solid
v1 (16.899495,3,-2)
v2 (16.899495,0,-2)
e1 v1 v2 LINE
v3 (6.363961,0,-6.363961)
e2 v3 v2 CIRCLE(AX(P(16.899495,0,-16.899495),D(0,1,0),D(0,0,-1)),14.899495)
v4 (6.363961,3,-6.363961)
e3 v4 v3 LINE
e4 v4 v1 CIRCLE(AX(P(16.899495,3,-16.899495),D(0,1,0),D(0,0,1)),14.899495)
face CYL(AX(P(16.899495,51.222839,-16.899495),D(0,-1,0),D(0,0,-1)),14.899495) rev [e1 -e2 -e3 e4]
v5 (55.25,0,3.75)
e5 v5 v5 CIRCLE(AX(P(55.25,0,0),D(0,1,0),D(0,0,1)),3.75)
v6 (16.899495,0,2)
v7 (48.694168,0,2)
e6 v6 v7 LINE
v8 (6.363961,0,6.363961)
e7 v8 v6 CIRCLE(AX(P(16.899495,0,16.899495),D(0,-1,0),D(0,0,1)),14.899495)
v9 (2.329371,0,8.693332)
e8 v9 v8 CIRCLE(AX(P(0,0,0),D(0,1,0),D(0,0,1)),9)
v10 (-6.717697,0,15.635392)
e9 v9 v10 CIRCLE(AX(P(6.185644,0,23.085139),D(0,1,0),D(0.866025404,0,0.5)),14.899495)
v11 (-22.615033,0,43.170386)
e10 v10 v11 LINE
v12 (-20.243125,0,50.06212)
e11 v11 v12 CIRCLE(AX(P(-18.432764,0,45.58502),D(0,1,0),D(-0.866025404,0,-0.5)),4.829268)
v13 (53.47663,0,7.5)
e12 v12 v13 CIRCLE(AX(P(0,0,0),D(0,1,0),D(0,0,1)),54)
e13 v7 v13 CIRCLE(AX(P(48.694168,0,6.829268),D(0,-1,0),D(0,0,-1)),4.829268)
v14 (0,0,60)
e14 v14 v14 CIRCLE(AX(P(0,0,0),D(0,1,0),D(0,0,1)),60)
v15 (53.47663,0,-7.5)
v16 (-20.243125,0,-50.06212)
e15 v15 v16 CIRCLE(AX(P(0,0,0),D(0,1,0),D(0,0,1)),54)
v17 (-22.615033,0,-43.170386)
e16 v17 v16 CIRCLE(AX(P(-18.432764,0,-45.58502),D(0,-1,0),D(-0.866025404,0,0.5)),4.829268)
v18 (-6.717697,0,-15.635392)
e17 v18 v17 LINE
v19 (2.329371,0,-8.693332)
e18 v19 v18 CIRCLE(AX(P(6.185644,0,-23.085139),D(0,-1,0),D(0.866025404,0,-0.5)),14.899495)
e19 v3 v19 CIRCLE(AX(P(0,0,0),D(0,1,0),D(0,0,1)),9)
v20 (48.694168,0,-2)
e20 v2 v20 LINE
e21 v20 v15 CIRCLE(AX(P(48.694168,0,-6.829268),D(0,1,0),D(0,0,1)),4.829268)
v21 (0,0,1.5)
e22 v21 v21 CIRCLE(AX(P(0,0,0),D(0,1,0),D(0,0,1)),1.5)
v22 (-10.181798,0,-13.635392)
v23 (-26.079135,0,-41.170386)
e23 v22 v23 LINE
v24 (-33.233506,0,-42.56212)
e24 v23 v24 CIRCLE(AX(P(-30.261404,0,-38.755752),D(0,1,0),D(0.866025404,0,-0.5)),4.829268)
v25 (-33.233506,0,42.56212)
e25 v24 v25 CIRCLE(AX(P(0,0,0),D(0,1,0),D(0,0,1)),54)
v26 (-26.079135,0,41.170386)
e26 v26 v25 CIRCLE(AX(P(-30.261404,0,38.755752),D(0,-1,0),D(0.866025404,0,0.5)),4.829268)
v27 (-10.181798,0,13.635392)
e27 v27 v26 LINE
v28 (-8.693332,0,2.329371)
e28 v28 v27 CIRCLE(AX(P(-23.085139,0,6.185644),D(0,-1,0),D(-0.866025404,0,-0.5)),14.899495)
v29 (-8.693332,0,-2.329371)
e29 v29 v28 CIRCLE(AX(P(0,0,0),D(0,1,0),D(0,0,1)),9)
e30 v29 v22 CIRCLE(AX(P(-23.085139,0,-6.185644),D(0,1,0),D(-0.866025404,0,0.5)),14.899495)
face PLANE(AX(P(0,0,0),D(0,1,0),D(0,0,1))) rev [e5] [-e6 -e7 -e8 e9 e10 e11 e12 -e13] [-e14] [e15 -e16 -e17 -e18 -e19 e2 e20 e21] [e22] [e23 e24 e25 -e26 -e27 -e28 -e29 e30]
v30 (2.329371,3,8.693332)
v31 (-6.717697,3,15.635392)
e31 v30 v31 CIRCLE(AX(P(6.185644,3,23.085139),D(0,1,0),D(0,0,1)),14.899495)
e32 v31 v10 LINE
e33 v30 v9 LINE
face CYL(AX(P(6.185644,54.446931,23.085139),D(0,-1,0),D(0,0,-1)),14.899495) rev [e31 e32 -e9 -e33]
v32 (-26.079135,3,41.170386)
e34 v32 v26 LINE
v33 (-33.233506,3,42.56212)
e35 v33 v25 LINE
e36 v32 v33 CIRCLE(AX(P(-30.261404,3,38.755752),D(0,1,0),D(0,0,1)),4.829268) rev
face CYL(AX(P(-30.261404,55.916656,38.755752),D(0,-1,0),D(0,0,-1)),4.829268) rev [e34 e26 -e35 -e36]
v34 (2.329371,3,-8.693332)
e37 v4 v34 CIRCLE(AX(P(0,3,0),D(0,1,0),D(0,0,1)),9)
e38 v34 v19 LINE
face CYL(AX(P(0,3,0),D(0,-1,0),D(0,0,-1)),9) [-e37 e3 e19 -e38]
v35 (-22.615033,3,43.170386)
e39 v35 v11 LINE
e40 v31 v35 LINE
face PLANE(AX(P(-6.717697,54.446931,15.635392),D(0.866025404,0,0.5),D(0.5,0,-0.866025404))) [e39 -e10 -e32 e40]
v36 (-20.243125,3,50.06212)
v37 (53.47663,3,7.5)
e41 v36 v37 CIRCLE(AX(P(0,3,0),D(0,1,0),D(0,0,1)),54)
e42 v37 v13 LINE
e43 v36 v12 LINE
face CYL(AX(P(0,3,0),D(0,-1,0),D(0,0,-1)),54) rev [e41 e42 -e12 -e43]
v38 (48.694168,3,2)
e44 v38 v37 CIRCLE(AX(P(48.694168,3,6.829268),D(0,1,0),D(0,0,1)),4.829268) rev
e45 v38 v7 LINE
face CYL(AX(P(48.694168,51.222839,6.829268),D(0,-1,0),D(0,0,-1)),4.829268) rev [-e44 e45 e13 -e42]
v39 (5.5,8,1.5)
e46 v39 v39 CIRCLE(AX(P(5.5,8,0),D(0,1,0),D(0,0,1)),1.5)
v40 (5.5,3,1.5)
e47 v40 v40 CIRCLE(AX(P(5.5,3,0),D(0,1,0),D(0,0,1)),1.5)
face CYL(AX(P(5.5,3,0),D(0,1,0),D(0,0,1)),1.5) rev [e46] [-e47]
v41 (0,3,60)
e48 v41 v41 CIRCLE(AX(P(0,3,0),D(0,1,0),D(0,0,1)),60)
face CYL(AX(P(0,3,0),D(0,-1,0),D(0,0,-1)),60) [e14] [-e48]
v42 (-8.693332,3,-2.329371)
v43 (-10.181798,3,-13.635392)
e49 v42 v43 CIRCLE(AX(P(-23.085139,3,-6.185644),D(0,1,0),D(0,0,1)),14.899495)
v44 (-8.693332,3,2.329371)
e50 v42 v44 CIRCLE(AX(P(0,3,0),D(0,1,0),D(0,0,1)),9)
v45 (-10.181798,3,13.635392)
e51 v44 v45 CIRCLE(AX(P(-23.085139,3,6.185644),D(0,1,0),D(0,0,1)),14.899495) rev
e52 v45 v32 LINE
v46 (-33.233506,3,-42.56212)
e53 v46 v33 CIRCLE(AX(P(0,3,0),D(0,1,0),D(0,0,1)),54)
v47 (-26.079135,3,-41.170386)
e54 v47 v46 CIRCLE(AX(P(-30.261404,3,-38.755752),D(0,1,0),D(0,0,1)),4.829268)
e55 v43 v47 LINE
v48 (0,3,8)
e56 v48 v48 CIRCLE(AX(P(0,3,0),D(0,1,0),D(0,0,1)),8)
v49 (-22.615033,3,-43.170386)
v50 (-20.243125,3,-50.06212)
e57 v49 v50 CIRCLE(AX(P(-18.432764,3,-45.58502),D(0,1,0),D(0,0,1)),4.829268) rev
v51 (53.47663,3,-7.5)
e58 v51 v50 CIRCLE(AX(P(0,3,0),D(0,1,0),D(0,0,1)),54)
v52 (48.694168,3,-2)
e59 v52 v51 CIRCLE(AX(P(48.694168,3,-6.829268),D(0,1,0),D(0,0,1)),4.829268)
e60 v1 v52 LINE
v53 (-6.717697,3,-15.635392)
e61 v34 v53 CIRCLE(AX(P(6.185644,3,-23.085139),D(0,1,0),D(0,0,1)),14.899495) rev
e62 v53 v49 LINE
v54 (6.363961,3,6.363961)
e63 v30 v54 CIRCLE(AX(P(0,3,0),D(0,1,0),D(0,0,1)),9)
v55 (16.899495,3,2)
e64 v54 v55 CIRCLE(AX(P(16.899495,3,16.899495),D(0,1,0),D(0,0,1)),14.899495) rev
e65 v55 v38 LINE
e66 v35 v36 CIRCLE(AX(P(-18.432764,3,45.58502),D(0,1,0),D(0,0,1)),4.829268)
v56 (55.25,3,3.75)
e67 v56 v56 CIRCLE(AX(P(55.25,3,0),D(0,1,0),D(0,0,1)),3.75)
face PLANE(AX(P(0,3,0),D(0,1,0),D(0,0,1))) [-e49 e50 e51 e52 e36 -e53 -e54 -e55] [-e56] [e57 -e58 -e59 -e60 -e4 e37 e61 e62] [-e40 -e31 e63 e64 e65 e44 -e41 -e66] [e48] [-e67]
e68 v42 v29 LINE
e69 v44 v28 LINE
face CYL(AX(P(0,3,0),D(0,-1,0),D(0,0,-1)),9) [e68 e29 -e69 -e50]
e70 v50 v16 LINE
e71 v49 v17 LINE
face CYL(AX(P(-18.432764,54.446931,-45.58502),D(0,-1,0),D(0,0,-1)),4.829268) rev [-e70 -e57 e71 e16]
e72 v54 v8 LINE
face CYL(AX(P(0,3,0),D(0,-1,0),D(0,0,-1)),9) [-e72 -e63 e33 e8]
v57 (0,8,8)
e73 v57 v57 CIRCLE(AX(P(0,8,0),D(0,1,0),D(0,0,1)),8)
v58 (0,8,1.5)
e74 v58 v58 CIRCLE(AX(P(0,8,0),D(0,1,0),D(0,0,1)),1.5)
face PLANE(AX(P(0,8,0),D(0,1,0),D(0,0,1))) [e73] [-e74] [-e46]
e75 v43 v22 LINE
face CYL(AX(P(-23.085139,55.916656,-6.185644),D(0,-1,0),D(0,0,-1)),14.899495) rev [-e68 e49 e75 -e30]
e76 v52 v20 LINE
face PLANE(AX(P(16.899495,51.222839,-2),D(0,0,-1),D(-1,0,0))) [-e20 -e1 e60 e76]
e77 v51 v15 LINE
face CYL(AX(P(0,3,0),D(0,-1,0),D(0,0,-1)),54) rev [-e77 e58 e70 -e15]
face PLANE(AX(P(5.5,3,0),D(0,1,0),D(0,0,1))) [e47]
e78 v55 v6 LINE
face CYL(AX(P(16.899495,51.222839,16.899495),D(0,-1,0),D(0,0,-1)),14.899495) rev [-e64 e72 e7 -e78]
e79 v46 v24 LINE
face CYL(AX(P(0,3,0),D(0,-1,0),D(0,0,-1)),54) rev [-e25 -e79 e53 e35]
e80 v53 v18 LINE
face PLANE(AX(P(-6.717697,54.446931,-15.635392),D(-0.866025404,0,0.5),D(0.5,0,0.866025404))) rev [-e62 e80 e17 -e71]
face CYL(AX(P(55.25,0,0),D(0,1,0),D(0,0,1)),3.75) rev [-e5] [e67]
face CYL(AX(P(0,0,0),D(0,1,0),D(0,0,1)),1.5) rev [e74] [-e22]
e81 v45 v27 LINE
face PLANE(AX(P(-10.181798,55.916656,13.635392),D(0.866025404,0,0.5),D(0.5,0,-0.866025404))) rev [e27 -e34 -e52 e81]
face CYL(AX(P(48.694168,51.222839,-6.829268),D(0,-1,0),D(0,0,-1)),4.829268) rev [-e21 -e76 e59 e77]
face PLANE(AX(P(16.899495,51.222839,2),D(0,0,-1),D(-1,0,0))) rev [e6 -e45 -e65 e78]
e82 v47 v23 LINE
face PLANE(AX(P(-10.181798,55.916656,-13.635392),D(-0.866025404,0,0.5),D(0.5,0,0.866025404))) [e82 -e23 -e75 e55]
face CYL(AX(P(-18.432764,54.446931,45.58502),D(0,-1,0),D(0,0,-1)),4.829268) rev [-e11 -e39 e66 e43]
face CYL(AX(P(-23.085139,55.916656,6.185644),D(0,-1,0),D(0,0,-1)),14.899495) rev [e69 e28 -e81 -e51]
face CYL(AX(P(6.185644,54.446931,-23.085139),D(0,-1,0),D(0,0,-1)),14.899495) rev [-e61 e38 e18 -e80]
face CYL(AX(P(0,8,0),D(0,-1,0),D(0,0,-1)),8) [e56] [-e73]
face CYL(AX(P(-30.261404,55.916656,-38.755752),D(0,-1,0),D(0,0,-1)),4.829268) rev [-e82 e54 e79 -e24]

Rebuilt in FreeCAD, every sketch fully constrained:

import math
import FreeCAD as App
import Part
import Sketcher
Q = App.Units.Quantity

doc = App.newDocument("Part")
body = doc.addObject("PartDesign::Body", "Body")

# Sketch on XZ plane
sketch1 = body.newObject("Sketcher::SketchObject", "Sketch")
sketch1.AttachmentSupport = (doc.getObject("XZ_Plane"), [""])
sketch1.MapMode = "FlatFace"
sketch1.addGeometry(Part.Circle(App.Vector(0, 0, 0), App.Vector(0, 0, 1), 60), False)
sketch1.addGeometry(Part.Circle(App.Vector(0, 0, 0), App.Vector(0, 0, 1), 54), False)
sketch1.addConstraint(Sketcher.Constraint("Coincident", 0, 3, -1, 1))
sketch1.addConstraint(Sketcher.Constraint("Coincident", 1, 3, -1, 1))
sketch1.addConstraint(Sketcher.Constraint("Diameter", 0, Q("120 mm")))
sketch1.addConstraint(Sketcher.Constraint("Diameter", 1, Q("108 mm")))
pad1 = body.newObject("PartDesign::Pad", "Pad")
pad1.Profile = sketch1
pad1.Length = 3
pad1.Reversed = True
body2 = doc.addObject("PartDesign::Body", "Body001")

# Sketch on XZ plane
sketch2 = body2.newObject("Sketcher::SketchObject", "Sketch001")
sketch2.AttachmentSupport = (doc.getObject("XZ_Plane001"), [""])
sketch2.MapMode = "FlatFace"
sketch2.addGeometry(Part.Circle(App.Vector(0, 0, 0), App.Vector(0, 0, 1), 9), False)
sketch2.addConstraint(Sketcher.Constraint("Coincident", 0, 3, -1, 1))
sketch2.addConstraint(Sketcher.Constraint("Diameter", 0, Q("18 mm")))
pad2 = body2.newObject("PartDesign::Pad", "Pad001")
pad2.Profile = sketch2
pad2.Length = 3
pad2.Reversed = True

# Sketch on XZ plane
sketch3 = body2.newObject("Sketcher::SketchObject", "Sketch002")
sketch3.AttachmentSupport = (doc.getObject("XZ_Plane001"), [""])
sketch3.MapMode = "FlatFace"
sketch3.AttachmentOffset = App.Placement(App.Vector(0, 0, -3), App.Rotation())
sketch3.addGeometry(Part.Circle(App.Vector(0, 0, 0), App.Vector(0, 0, 1), 8), False)
sketch3.addConstraint(Sketcher.Constraint("Coincident", 0, 3, -1, 1))
sketch3.addConstraint(Sketcher.Constraint("Diameter", 0, Q("16 mm")))
pad3 = body2.newObject("PartDesign::Pad", "Pad002")
pad3.Profile = sketch3
pad3.Length = 5
pad3.Reversed = True
body.AllowCompound = True
doc.recompute()

boolean = body.newObject("PartDesign::Boolean", "Boolean")
boolean.Type = "Fuse"
boolean.addObjects([body2])

# Sketch on XZ plane
sketch4 = body.newObject("Sketcher::SketchObject", "Sketch003")
sketch4.AttachmentSupport = (doc.getObject("XZ_Plane"), [""])
sketch4.MapMode = "FlatFace"
sketch4.addGeometry(Part.LineSegment(App.Vector(54, 0, 0), App.Vector(9, 0, 0)), False)
sketch4.addGeometry(Part.ArcOfCircle(Part.Circle(App.Vector(0, 0, 0), App.Vector(0, 0, 1), 9), math.radians(0), math.radians(45)), False)
sketch4.addGeometry(Part.ArcOfCircle(Part.Circle(App.Vector(16.9, 16.9, 0), App.Vector(0, 0, 1), 14.9), math.radians(-135), math.radians(-90)), False)
sketch4.addGeometry(Part.LineSegment(App.Vector(16.9, 2, 0), App.Vector(48.7, 2, 0)), False)
sketch4.addGeometry(Part.ArcOfCircle(Part.Circle(App.Vector(48.7, 6.8, 0), App.Vector(0, 0, 1), 4.8), math.radians(-90), math.radians(8)), False)
sketch4.addGeometry(Part.ArcOfCircle(Part.Circle(App.Vector(0, 0, 0), App.Vector(0, 0, 1), 54), math.radians(0), math.radians(7.98)), False)
sketch4.addConstraint(Sketcher.Constraint("Coincident", 0, 2, 1, 1))
sketch4.addConstraint(Sketcher.Constraint("Tangent", 1, 2, 2, 1))
sketch4.addConstraint(Sketcher.Constraint("Tangent", 2, 2, 3, 1))
sketch4.addConstraint(Sketcher.Constraint("Tangent", 3, 2, 4, 1))
sketch4.addConstraint(Sketcher.Constraint("Tangent", 4, 2, 5, 2))
sketch4.addConstraint(Sketcher.Constraint("Coincident", 5, 1, 0, 1))
sketch4.addConstraint(Sketcher.Constraint("Horizontal", 0))
sketch4.addConstraint(Sketcher.Constraint("Horizontal", 3))
sketch4.addConstraint(Sketcher.Constraint("Coincident", 1, 3, -1, 1))
sketch4.addConstraint(Sketcher.Constraint("Coincident", 5, 3, -1, 1))
sketch4.addConstraint(Sketcher.Constraint("PointOnObject", 0, 2, -1))
sketch4.addConstraint(Sketcher.Constraint("Radius", 1, Q("9 mm")))
sketch4.addConstraint(Sketcher.Constraint("Radius", 5, Q("54 mm")))
sketch4.addConstraint(Sketcher.Constraint("DistanceY", -1, 1, 2, 2, Q("2 mm")))
sketch4.addConstraint(Sketcher.Constraint("DistanceY", -1, 1, 4, 2, Q("7.5 mm")))
sketch4.addConstraint(Sketcher.Constraint("Radius", 2, Q("14.899495 mm")))
pad4 = body.newObject("PartDesign::Pad", "Pad003")
pad4.Profile = sketch4
pad4.Length = 3
pad4.Reversed = True
doc.recompute()

polarpattern = body.newObject("PartDesign::PolarPattern", "PolarPattern")
polarpattern.Originals = [pad4]
polarpattern.Axis = (doc.getObject("Y_Axis"), [""])
polarpattern.Angle = 360
polarpattern.Occurrences = 3
body.Tip = polarpattern
doc.recompute()

datumplane = body.newObject("PartDesign::Plane", "DatumPlane")
datumplane.Placement = App.Placement(App.Vector(0, 0, 0), App.Rotation(App.Vector(0.5, 0, 0.866025404), App.Vector(0, -1, 0), App.Vector(0.866025404, 0, -0.5), "ZXY"))
mirrored = body.newObject("PartDesign::Mirrored", "Mirrored")
mirrored.Originals = [pad4]
mirrored.MirrorPlane = (datumplane, [""])
body.Tip = mirrored

# Sketch on XZ plane
sketch5 = body.newObject("Sketcher::SketchObject", "Sketch004")
sketch5.AttachmentSupport = (doc.getObject("XZ_Plane"), [""])
sketch5.MapMode = "FlatFace"
sketch5.addGeometry(Part.LineSegment(App.Vector(-4.5, -7.8, 0), App.Vector(-27, -46.8, 0)), False)
sketch5.addGeometry(Part.ArcOfCircle(Part.Circle(App.Vector(0, 0, 0), App.Vector(0, 0, 1), 54), math.radians(-127.98), math.radians(-120)), False)
sketch5.addGeometry(Part.ArcOfCircle(Part.Circle(App.Vector(-30.3, -38.8, 0), App.Vector(0, 0, 1), 4.8), math.radians(-128), math.radians(-30)), False)
sketch5.addGeometry(Part.LineSegment(App.Vector(-26.1, -41.2, 0), App.Vector(-10.2, -13.6, 0)), False)
sketch5.addGeometry(Part.ArcOfCircle(Part.Circle(App.Vector(-23.1, -6.2, 0), App.Vector(0, 0, 1), 14.9), math.radians(-30), math.radians(15)), False)
sketch5.addGeometry(Part.ArcOfCircle(Part.Circle(App.Vector(0, 0, 0), App.Vector(0, 0, 1), 9), math.radians(-165), math.radians(-120)), False)
sketch5.addConstraint(Sketcher.Constraint("Coincident", 0, 2, 1, 2))
sketch5.addConstraint(Sketcher.Constraint("Tangent", 1, 1, 2, 1))
sketch5.addConstraint(Sketcher.Constraint("Tangent", 2, 2, 3, 1))
sketch5.addConstraint(Sketcher.Constraint("Tangent", 3, 2, 4, 1))
sketch5.addConstraint(Sketcher.Constraint("Tangent", 4, 2, 5, 1))
sketch5.addConstraint(Sketcher.Constraint("Coincident", 5, 2, 0, 1))
sketch5.addConstraint(Sketcher.Constraint("Coincident", 1, 3, -1, 1))
sketch5.addConstraint(Sketcher.Constraint("Coincident", 5, 3, -1, 1))
sketch5.addConstraint(Sketcher.Constraint("Parallel", 0, 3))
sketch5.addConstraint(Sketcher.Constraint("Radius", 1, Q("54 mm")))
sketch5.addConstraint(Sketcher.Constraint("Radius", 5, Q("9 mm")))
sketch5.addConstraint(Sketcher.Constraint("Angle", 0, Q("-120 deg")))
sketch5.addConstraint(Sketcher.Constraint("DistanceX", 0, 2, -1, 1, Q("27 mm")))
sketch5.addConstraint(Sketcher.Constraint("Radius", 2, Q("4.829268 mm")))
sketch5.addConstraint(Sketcher.Constraint("Radius", 4, Q("14.899495 mm")))
sketch5.addConstraint(Sketcher.Constraint("DistanceX", 3, 2, -1, 1, Q("10.181798 mm")))
pad5 = body.newObject("PartDesign::Pad", "Pad004")
pad5.Profile = sketch5
pad5.Length = 3
pad5.Reversed = True

# Sketch on XZ plane
sketch6 = body.newObject("Sketcher::SketchObject", "Sketch005")
sketch6.AttachmentSupport = (doc.getObject("XZ_Plane"), [""])
sketch6.MapMode = "FlatFace"
sketch6.addGeometry(Part.LineSegment(App.Vector(9, 0, 0), App.Vector(54, 0, 0)), False)
sketch6.addGeometry(Part.ArcOfCircle(Part.Circle(App.Vector(0, 0, 0), App.Vector(0, 0, 1), 54), math.radians(-7.98), math.radians(0)), False)
sketch6.addGeometry(Part.ArcOfCircle(Part.Circle(App.Vector(48.7, -6.8, 0), App.Vector(0, 0, 1), 4.8), math.radians(-8), math.radians(90)), False)
sketch6.addGeometry(Part.LineSegment(App.Vector(48.7, -2, 0), App.Vector(16.9, -2, 0)), False)
sketch6.addGeometry(Part.ArcOfCircle(Part.Circle(App.Vector(16.9, -16.9, 0), App.Vector(0, 0, 1), 14.9), math.radians(90), math.radians(135)), False)
sketch6.addGeometry(Part.ArcOfCircle(Part.Circle(App.Vector(0, 0, 0), App.Vector(0, 0, 1), 9), math.radians(-45), math.radians(0)), False)
sketch6.addConstraint(Sketcher.Constraint("Coincident", 0, 2, 1, 2))
sketch6.addConstraint(Sketcher.Constraint("Tangent", 1, 1, 2, 1))
sketch6.addConstraint(Sketcher.Constraint("Tangent", 2, 2, 3, 1))
sketch6.addConstraint(Sketcher.Constraint("Tangent", 3, 2, 4, 1))
sketch6.addConstraint(Sketcher.Constraint("Tangent", 4, 2, 5, 1))
sketch6.addConstraint(Sketcher.Constraint("Coincident", 5, 2, 0, 1))
sketch6.addConstraint(Sketcher.Constraint("Horizontal", 0))
sketch6.addConstraint(Sketcher.Constraint("Horizontal", 3))
sketch6.addConstraint(Sketcher.Constraint("Coincident", 1, 3, -1, 1))
sketch6.addConstraint(Sketcher.Constraint("Coincident", 5, 3, -1, 1))
sketch6.addConstraint(Sketcher.Constraint("PointOnObject", 0, 2, -1))
sketch6.addConstraint(Sketcher.Constraint("Radius", 1, Q("54 mm")))
sketch6.addConstraint(Sketcher.Constraint("Radius", 5, Q("9 mm")))
sketch6.addConstraint(Sketcher.Constraint("DistanceY", 2, 2, -1, 1, Q("2 mm")))
sketch6.addConstraint(Sketcher.Constraint("DistanceY", 1, 1, -1, 1, Q("7.5 mm")))
sketch6.addConstraint(Sketcher.Constraint("Radius", 4, Q("14.899495 mm")))
pad6 = body.newObject("PartDesign::Pad", "Pad005")
pad6.Profile = sketch6
pad6.Length = 3
pad6.Reversed = True

# Sketch on XZ plane
sketch7 = body.newObject("Sketcher::SketchObject", "Sketch006")
sketch7.AttachmentSupport = (doc.getObject("XZ_Plane"), [""])
sketch7.MapMode = "FlatFace"
sketch7.AttachmentOffset = App.Placement(App.Vector(0, 0, -8), App.Rotation())
sketch7.addGeometry(Part.Circle(App.Vector(5.5, 0, 0), App.Vector(0, 0, 1), 1.5), False)
sketch7.addConstraint(Sketcher.Constraint("PointOnObject", 0, 3, -1))
sketch7.addConstraint(Sketcher.Constraint("Diameter", 0, Q("3 mm")))
sketch7.addConstraint(Sketcher.Constraint("DistanceX", -1, 1, 0, 3, Q("5.5 mm")))
pocket1 = body.newObject("PartDesign::Pocket", "Pocket")
pocket1.Profile = sketch7
pocket1.Length = 5
pocket1.Reversed = True

# Sketch on XZ plane
sketch8 = body.newObject("Sketcher::SketchObject", "Sketch007")
sketch8.AttachmentSupport = (doc.getObject("XZ_Plane"), [""])
sketch8.MapMode = "FlatFace"
sketch8.AttachmentOffset = App.Placement(App.Vector(0, 0, -8), App.Rotation())
sketch8.addGeometry(Part.Circle(App.Vector(0, 0, 0), App.Vector(0, 0, 1), 1.5), False)
sketch8.addConstraint(Sketcher.Constraint("Coincident", 0, 3, -1, 1))
sketch8.addConstraint(Sketcher.Constraint("Diameter", 0, Q("3 mm")))
pocket2 = body.newObject("PartDesign::Pocket", "Pocket001")
pocket2.Profile = sketch8
pocket2.Type = "ThroughAll"
pocket2.Midplane = True

# Sketch on XZ plane
sketch9 = body.newObject("Sketcher::SketchObject", "Sketch008")
sketch9.AttachmentSupport = (doc.getObject("XZ_Plane"), [""])
sketch9.MapMode = "FlatFace"
sketch9.AttachmentOffset = App.Placement(App.Vector(0, 0, -3), App.Rotation())
sketch9.addGeometry(Part.Circle(App.Vector(55.2, 0, 0), App.Vector(0, 0, 1), 3.8), False)
sketch9.addConstraint(Sketcher.Constraint("PointOnObject", 0, 3, -1))
sketch9.addConstraint(Sketcher.Constraint("Diameter", 0, Q("7.5 mm")))
sketch9.addConstraint(Sketcher.Constraint("DistanceX", -1, 1, 0, 3, Q("55.25 mm")))
pocket3 = body.newObject("PartDesign::Pocket", "Pocket002")
pocket3.Profile = sketch9
pocket3.Type = "ThroughAll"
pocket3.Midplane = True

doc.recompute()
